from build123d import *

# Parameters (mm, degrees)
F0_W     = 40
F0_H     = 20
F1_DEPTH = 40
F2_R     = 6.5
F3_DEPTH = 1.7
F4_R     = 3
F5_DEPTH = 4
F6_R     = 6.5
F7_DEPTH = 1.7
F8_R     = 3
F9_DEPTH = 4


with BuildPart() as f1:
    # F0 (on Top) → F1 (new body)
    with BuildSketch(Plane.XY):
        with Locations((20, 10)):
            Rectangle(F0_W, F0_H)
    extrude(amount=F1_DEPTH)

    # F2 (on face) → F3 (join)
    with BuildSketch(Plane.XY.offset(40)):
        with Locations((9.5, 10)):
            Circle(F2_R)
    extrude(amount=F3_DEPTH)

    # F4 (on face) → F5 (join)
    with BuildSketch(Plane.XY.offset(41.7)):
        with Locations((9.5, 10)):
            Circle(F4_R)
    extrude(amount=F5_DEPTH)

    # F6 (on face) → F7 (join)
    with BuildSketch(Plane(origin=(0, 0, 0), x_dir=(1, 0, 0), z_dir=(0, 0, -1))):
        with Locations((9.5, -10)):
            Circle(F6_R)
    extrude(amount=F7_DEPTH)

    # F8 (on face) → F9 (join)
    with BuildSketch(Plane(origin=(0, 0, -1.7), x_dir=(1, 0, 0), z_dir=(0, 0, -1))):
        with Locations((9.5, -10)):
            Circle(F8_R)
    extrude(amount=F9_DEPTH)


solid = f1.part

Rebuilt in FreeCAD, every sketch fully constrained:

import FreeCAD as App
import Part
import Sketcher
from FreeCAD import Vector
Q = App.Units.Quantity


def add_polygon(sketch, points):
    """Adds a closed chain of lines whose ends are joined by coincident constraints."""
    first, n = sketch.GeometryCount, len(points)
    for a, b in zip(points, points[1:] + points[:1]):
        sketch.addGeometry(Part.LineSegment(App.Vector(*a, 0), App.Vector(*b, 0)), False)
    for i in range(n):
        sketch.addConstraint(Sketcher.Constraint("Coincident", first + i, 2, first + (i + 1) % n, 1))

doc = App.newDocument("Part")
params = doc.addObject("Spreadsheet::Sheet", "Params")
for row, (alias, value) in enumerate([
    ("sketch1_width", "40 mm"),
    ("sketch1_height", "20 mm"),
    ("pad1_length", "40 mm"),
    ("sketch2_diameter", "13 mm"),
    ("pad2_length", "1.7 mm"),
    ("sketch3_diameter", "6 mm"),
    ("pad3_length", "4 mm"),
    ("sketch4_diameter", "13 mm"),
    ("pad4_length", "1.7 mm"),
    ("sketch5_diameter", "6 mm"),
    ("pad5_length", "4 mm"),
], start=1):
    params.set(f"A{row}", alias)
    params.set(f"B{row}", "=" + value)
    params.setAlias(f"B{row}", alias)

body = doc.addObject("PartDesign::Body", "Body")

sketch1 = body.newObject("Sketcher::SketchObject", "Sketch")
sketch1.AttachmentSupport = (doc.getObject("XY_Plane"), [""])
sketch1.MapMode = "FlatFace"
add_polygon(sketch1, [(0, 20), (0, 0), (40, 0), (40, 20)])
sketch1.addConstraint([
    Sketcher.Constraint("Vertical", 0),
    Sketcher.Constraint("Horizontal", 1),
    Sketcher.Constraint("Vertical", 2),
    Sketcher.Constraint("Horizontal", 3),
    Sketcher.Constraint("Coincident", 0, 2, -1, 1),
    Sketcher.Constraint("DistanceX", 1, 1, 1, 2, Q("40 mm")),
    Sketcher.Constraint("DistanceY", 0, 2, 0, 1, Q("20 mm")),
])
sketch1.setExpression("Constraints[9]", "Params.sketch1_width")
sketch1.setExpression("Constraints[10]", "Params.sketch1_height")
pad1 = body.newObject("PartDesign::Pad", "Pad")
pad1.Profile = sketch1
pad1.setExpression("Length", "Params.pad1_length")

sketch2 = body.newObject("Sketcher::SketchObject", "Sketch001")
sketch2.AttachmentSupport = (doc.getObject("XY_Plane"), [""])
sketch2.MapMode = "FlatFace"
sketch2.AttachmentOffset = App.Placement(Vector(0, 0, 40), App.Rotation())
sketch2.addGeometry(Part.Circle(Vector(10, 10, 0), Vector(0, 0, 1), 6), False)
sketch2.addConstraint([
    Sketcher.Constraint("Diameter", 0, Q("13 mm")),
    Sketcher.Constraint("DistanceY", -1, 1, 0, 3, Q("10 mm")),
    Sketcher.Constraint("DistanceX", -1, 1, 0, 3, Q("9.5 mm")),
])
sketch2.setExpression("Constraints[0]", "Params.sketch2_diameter")
pad2 = body.newObject("PartDesign::Pad", "Pad001")
pad2.Profile = sketch2
pad2.setExpression("Length", "Params.pad2_length")

sketch3 = body.newObject("Sketcher::SketchObject", "Sketch002")
sketch3.AttachmentSupport = (doc.getObject("XY_Plane"), [""])
sketch3.MapMode = "FlatFace"
sketch3.AttachmentOffset = App.Placement(Vector(0, 0, 41.7), App.Rotation())
sketch3.addGeometry(Part.Circle(Vector(9.5, 10, 0), Vector(0, 0, 1), 3), False)
sketch3.addConstraint([
    Sketcher.Constraint("Diameter", 0, Q("6 mm")),
    Sketcher.Constraint("DistanceY", -1, 1, 0, 3, Q("10 mm")),
    Sketcher.Constraint("DistanceX", -1, 1, 0, 3, Q("9.5 mm")),
])
sketch3.setExpression("Constraints[0]", "Params.sketch3_diameter")
pad3 = body.newObject("PartDesign::Pad", "Pad002")
pad3.Profile = sketch3
pad3.setExpression("Length", "Params.pad3_length")

sketch4 = body.newObject("Sketcher::SketchObject", "Sketch003")
sketch4.AttachmentSupport = (doc.getObject("XY_Plane"), [""])
sketch4.MapMode = "FlatFace"
sketch4.addGeometry(Part.Circle(Vector(10, 10, 0), Vector(0, 0, 1), 6), False)
sketch4.addConstraint([
    Sketcher.Constraint("Diameter", 0, Q("13 mm")),
    Sketcher.Constraint("DistanceY", -1, 1, 0, 3, Q("10 mm")),
    Sketcher.Constraint("DistanceX", -1, 1, 0, 3, Q("9.5 mm")),
])
sketch4.setExpression("Constraints[0]", "Params.sketch4_diameter")
pad4 = body.newObject("PartDesign::Pad", "Pad003")
pad4.Profile = sketch4
pad4.setExpression("Length", "Params.pad4_length")
pad4.Reversed = True

sketch5 = body.newObject("Sketcher::SketchObject", "Sketch004")
sketch5.AttachmentSupport = (doc.getObject("XY_Plane"), [""])
sketch5.MapMode = "FlatFace"
sketch5.AttachmentOffset = App.Placement(Vector(0, 0, -1.7), App.Rotation())
sketch5.addGeometry(Part.Circle(Vector(9.5, 10, 0), Vector(0, 0, 1), 3), False)
sketch5.addConstraint([
    Sketcher.Constraint("Diameter", 0, Q("6 mm")),
    Sketcher.Constraint("DistanceY", -1, 1, 0, 3, Q("10 mm")),
    Sketcher.Constraint("DistanceX", -1, 1, 0, 3, Q("9.5 mm")),
])
sketch5.setExpression("Constraints[0]", "Params.sketch5_diameter")
pad5 = body.newObject("PartDesign::Pad", "Pad004")
pad5.Profile = sketch5
pad5.setExpression("Length", "Params.pad5_length")
pad5.Reversed = True

doc.recompute()
